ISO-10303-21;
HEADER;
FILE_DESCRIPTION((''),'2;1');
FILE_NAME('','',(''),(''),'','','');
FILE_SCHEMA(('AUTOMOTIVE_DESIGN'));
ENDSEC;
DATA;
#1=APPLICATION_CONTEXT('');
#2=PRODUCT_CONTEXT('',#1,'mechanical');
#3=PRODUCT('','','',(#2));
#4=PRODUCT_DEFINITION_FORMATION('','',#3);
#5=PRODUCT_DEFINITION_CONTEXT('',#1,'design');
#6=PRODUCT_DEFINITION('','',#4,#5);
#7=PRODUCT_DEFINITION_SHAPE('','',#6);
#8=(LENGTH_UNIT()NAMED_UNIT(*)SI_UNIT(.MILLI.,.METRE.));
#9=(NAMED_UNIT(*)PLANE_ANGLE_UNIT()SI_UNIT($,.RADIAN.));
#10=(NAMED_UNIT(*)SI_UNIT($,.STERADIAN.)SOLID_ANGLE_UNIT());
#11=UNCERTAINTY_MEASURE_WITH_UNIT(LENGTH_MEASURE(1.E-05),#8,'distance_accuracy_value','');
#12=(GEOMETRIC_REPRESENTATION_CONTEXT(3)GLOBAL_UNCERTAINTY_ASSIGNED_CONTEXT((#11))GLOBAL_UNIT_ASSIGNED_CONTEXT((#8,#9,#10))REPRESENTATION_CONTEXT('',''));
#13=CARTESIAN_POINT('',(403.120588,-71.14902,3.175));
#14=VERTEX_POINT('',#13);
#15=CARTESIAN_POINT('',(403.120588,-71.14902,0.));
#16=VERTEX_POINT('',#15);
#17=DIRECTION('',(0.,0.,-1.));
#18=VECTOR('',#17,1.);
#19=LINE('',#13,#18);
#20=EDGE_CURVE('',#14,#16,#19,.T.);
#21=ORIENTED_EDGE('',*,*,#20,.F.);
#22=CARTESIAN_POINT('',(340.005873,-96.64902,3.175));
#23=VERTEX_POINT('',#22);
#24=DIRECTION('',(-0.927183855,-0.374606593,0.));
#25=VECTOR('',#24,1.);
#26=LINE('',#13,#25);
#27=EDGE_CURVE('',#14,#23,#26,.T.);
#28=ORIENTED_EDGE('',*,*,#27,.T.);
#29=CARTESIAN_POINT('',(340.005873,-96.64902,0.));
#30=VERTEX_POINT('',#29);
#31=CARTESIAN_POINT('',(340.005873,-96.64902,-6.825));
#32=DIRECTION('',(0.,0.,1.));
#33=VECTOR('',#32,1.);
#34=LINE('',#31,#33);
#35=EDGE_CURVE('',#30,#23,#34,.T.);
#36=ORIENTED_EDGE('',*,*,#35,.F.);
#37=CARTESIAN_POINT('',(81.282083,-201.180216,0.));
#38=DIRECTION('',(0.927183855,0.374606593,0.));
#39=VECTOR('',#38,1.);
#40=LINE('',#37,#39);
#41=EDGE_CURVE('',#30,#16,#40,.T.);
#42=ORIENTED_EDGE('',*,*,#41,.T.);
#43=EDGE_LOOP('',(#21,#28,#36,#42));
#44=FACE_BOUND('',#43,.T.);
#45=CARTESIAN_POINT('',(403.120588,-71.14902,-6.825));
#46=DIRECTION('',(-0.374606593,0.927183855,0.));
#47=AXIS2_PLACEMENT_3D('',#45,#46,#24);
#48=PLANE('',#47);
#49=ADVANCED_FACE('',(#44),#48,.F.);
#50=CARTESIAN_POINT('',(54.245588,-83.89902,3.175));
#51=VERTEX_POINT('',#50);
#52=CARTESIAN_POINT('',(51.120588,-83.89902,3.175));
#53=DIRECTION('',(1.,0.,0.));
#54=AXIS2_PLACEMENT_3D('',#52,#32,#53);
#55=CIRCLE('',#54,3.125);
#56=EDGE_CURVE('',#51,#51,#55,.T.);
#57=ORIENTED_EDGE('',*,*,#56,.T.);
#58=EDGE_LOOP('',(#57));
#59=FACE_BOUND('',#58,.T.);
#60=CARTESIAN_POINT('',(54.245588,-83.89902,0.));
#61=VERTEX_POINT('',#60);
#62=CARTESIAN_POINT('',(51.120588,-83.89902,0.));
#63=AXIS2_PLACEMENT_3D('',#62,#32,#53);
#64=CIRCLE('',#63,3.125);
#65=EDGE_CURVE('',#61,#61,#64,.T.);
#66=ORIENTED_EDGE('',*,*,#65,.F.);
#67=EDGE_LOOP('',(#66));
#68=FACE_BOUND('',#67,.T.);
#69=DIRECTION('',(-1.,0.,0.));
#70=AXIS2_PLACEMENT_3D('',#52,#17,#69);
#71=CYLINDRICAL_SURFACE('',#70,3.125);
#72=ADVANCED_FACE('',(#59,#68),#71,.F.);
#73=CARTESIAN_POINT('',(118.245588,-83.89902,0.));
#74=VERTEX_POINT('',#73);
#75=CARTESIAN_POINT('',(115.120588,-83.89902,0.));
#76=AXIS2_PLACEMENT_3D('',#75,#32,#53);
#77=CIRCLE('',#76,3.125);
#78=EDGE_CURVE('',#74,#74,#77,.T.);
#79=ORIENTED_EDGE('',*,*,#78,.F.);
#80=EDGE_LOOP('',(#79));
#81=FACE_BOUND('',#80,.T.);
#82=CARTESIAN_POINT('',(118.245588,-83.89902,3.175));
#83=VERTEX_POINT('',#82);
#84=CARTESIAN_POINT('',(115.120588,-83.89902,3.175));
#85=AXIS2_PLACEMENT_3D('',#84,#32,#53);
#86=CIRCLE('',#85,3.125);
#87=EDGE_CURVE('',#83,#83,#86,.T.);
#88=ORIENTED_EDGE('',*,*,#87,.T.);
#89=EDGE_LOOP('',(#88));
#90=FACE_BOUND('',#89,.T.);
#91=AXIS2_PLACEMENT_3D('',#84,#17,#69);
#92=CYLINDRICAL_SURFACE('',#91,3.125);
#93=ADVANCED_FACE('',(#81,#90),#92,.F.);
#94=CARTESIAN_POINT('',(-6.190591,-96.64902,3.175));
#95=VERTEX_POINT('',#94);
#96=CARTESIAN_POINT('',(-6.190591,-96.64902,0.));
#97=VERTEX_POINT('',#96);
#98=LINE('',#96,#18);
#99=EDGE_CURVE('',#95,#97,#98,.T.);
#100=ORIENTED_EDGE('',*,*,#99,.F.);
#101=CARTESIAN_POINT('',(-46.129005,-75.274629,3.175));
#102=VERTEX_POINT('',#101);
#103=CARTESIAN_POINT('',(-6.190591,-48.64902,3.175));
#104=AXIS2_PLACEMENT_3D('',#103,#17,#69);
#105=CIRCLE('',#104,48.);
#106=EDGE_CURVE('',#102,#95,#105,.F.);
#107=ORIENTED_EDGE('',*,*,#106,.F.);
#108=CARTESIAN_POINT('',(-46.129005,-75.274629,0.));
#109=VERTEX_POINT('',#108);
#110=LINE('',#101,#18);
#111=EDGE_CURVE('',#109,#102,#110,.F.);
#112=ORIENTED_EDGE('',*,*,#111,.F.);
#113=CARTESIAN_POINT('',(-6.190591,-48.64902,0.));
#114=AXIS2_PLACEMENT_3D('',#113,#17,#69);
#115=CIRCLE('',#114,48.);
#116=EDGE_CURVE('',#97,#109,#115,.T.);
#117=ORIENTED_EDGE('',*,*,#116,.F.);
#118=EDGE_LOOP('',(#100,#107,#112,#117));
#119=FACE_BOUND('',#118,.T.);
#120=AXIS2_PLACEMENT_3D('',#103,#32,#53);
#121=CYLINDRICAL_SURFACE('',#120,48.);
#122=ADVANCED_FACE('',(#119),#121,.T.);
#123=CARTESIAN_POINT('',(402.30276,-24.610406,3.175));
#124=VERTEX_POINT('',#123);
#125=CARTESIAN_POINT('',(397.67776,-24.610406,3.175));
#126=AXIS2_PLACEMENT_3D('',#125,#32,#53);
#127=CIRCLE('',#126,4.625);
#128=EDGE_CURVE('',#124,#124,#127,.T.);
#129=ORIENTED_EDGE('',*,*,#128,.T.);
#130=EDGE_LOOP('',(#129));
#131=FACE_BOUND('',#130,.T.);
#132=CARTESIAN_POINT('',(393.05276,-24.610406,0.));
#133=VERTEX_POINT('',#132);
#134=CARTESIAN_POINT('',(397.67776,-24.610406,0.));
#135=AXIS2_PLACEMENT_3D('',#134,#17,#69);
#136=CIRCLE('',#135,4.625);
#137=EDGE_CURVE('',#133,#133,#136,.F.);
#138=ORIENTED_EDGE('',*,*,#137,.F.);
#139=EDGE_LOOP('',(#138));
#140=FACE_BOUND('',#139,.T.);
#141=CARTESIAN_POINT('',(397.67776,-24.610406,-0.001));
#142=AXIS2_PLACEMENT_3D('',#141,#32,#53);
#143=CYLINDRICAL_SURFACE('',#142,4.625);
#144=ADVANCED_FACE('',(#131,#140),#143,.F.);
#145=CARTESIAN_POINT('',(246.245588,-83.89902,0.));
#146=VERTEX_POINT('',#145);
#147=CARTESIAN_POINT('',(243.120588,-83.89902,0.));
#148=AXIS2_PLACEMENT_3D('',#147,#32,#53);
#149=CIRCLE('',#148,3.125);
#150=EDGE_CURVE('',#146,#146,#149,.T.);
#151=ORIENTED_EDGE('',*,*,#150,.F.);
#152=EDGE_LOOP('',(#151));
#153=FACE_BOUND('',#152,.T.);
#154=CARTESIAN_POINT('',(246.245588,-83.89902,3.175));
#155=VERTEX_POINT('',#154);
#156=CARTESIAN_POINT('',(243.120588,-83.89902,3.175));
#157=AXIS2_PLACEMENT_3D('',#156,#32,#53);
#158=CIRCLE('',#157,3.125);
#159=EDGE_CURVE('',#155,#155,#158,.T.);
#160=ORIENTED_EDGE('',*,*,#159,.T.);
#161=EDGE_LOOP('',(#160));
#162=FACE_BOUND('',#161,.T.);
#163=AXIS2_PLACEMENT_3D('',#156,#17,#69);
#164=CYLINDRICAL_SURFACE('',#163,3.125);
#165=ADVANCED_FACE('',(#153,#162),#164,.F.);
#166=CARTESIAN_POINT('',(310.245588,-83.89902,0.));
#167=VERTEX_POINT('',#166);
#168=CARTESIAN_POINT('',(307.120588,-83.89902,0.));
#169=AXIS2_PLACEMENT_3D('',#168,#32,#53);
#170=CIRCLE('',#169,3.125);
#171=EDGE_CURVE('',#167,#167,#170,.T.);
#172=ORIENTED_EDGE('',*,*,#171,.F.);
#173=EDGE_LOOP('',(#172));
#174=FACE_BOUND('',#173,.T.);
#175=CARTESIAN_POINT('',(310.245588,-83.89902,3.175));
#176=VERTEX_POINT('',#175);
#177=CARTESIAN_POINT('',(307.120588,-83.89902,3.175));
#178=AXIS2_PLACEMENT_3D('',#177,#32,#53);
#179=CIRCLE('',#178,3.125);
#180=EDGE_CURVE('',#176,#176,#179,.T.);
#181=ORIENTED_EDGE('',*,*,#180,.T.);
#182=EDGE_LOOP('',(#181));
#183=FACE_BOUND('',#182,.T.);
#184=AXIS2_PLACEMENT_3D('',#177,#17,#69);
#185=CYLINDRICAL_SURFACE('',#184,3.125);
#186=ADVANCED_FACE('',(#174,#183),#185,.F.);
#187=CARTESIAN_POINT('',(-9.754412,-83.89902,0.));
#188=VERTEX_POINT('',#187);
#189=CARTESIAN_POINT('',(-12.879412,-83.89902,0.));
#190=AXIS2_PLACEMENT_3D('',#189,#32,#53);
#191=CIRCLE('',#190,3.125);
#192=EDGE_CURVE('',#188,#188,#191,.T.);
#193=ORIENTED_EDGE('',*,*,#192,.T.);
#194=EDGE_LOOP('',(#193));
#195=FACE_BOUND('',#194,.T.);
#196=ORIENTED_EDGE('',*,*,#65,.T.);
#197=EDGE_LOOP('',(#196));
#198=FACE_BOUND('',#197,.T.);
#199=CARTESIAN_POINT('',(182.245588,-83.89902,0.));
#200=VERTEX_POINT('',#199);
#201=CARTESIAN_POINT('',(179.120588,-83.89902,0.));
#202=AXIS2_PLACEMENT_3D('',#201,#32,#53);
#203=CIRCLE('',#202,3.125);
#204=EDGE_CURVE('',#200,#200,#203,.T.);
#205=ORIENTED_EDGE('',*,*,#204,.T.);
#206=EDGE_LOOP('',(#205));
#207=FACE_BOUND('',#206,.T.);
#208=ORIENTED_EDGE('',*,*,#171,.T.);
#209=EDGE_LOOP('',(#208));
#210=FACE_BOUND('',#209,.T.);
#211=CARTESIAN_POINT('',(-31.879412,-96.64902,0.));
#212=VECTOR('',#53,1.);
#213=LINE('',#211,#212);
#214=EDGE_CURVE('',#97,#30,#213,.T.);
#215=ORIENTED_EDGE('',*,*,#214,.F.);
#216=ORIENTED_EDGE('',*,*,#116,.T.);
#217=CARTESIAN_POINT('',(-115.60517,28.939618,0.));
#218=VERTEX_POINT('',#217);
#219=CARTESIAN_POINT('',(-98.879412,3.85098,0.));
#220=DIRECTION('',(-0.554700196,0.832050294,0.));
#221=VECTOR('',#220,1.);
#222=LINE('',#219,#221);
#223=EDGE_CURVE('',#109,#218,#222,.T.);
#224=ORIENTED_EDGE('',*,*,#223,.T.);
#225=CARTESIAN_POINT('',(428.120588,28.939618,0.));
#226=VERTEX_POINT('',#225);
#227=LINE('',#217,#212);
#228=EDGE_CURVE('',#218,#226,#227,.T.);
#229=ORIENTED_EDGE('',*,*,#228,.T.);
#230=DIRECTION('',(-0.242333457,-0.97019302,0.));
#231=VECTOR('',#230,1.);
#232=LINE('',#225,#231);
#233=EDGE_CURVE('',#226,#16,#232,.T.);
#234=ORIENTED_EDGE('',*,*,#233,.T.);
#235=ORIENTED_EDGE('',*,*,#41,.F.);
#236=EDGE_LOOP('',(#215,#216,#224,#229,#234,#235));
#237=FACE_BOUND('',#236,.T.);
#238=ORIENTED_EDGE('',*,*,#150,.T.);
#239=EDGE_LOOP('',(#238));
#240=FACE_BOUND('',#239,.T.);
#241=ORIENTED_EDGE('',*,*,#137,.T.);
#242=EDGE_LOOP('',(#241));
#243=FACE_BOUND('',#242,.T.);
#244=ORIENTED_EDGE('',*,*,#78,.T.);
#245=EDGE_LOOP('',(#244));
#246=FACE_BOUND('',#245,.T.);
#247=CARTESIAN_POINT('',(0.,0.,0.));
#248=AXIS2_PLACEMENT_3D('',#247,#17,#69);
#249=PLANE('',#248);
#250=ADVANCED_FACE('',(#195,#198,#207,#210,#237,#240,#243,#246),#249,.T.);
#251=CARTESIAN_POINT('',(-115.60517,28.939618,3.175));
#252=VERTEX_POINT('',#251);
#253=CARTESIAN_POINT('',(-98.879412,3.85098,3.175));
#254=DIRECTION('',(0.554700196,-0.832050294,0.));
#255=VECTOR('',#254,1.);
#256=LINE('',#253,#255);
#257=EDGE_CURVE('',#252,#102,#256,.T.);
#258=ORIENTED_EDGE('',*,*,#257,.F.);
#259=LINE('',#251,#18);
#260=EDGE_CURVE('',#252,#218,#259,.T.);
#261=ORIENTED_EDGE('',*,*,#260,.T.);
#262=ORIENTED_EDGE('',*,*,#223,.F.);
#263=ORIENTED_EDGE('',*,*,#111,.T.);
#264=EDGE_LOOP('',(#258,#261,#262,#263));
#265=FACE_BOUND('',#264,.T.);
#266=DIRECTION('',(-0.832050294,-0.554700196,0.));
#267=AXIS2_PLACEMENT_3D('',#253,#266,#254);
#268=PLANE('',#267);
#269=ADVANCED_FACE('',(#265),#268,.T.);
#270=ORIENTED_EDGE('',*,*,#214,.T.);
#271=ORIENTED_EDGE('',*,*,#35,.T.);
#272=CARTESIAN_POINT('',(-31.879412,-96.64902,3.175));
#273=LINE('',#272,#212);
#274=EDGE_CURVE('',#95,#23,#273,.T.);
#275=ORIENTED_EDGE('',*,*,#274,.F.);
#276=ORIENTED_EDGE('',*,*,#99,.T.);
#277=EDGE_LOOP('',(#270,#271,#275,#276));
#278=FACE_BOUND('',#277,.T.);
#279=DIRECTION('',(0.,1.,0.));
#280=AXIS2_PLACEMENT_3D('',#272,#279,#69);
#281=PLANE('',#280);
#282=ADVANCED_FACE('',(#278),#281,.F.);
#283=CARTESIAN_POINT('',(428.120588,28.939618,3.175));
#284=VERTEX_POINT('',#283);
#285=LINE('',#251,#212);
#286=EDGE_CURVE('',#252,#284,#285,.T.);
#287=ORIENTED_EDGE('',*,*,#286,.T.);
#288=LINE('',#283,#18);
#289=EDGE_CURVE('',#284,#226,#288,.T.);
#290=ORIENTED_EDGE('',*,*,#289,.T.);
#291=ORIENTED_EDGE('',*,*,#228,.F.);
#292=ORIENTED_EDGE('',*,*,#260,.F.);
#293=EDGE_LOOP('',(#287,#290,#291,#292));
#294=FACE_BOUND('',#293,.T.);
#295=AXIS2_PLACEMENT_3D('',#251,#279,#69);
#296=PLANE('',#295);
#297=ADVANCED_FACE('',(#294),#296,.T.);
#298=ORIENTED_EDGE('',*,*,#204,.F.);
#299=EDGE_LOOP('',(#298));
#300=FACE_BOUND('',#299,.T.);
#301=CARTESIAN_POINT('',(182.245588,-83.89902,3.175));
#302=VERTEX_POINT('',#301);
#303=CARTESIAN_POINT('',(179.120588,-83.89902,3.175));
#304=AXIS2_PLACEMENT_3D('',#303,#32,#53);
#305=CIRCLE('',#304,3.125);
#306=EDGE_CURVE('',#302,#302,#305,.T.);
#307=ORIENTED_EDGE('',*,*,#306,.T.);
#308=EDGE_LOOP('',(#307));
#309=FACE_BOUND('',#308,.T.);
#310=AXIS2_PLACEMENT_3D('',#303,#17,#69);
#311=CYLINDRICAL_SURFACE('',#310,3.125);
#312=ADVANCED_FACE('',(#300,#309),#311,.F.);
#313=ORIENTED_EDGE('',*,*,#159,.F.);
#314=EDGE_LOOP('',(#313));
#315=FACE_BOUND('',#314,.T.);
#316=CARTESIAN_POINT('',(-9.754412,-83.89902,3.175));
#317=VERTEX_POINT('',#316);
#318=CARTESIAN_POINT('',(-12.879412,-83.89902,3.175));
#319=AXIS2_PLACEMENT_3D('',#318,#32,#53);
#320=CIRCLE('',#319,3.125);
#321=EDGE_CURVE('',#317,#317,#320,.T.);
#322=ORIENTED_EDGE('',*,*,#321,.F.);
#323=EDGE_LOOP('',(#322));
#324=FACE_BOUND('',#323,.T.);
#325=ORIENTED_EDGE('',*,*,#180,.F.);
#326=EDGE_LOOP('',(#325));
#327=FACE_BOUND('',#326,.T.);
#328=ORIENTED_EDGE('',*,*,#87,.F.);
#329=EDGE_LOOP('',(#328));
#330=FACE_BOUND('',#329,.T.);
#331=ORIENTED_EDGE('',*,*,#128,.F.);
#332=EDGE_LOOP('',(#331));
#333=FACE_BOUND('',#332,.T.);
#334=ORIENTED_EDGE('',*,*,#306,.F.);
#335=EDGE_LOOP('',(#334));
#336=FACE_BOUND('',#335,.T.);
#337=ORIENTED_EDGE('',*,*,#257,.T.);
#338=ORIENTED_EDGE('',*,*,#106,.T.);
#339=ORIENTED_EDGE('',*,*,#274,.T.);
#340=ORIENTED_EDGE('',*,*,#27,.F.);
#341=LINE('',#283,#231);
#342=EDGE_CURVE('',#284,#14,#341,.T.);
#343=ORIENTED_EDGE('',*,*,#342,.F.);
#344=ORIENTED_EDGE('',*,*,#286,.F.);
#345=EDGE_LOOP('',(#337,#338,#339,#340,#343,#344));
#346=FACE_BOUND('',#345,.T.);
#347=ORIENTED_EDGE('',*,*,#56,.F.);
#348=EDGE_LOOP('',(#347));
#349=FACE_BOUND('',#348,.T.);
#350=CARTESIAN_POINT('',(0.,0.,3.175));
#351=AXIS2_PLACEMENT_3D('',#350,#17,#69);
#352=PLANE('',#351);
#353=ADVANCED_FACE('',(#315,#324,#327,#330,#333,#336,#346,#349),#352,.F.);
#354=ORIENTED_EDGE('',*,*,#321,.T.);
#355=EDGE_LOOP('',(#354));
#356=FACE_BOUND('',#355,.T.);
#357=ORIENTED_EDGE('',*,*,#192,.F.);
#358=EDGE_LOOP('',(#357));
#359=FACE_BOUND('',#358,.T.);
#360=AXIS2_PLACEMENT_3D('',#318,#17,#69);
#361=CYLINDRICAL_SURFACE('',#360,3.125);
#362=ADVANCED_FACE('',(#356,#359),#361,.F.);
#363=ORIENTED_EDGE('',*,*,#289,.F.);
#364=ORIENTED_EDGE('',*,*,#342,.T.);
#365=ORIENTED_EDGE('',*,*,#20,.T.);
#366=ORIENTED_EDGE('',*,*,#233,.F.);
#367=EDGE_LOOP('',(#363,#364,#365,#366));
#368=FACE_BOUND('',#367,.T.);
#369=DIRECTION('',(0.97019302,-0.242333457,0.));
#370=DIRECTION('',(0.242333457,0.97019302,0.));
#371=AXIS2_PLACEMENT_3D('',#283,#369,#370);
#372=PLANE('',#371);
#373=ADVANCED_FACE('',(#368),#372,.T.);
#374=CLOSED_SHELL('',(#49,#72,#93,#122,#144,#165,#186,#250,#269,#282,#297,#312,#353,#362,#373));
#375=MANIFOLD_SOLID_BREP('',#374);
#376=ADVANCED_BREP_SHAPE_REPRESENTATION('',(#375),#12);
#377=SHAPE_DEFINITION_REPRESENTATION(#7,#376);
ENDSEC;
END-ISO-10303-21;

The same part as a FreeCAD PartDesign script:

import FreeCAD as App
import Part
import Sketcher

V = App.Vector
Q = App.Units.Quantity


def edges_at(feature, points):
    """Names of the edges that pass closest to the given points."""
    edges = feature.Shape.Edges
    near = lambda p: min(range(len(edges)), key=lambda i: edges[i].distToShape(Part.Vertex(*p))[0])
    return sorted({f"Edge{near(p) + 1}" for p in points})


def add_polygon(sketch, points):
    """Adds a closed chain of lines whose ends are joined by coincident constraints."""
    first, n = sketch.GeometryCount, len(points)
    for a, b in zip(points, points[1:] + points[:1]):
        sketch.addGeometry(Part.LineSegment(App.Vector(*a, 0), App.Vector(*b, 0)), False)
    for i in range(n):
        sketch.addConstraint(Sketcher.Constraint("Coincident", first + i, 2, first + (i + 1) % n, 1))

doc = App.newDocument("Part")
body = doc.addObject("PartDesign::Body", "Body")

# Sketch on XY plane
sketch1 = body.newObject("Sketcher::SketchObject", "Sketch")
sketch1.AttachmentSupport = (doc.getObject("XY_Plane"), [""])
sketch1.MapMode = "FlatFace"
add_polygon(sketch1, [(-98.879412, 3.85098), (-31.879412, -96.64902), (366, -96.64902), (403.120588, -71.14902), (428.120588, 28.939618), (-115.60517, 28.939618)])  # lines 0-5
sketch1.addConstraint(Sketcher.Constraint("Horizontal", 1))
sketch1.addConstraint(Sketcher.Constraint("Horizontal", 4))
sketch1.addConstraint(Sketcher.Constraint("Parallel", 0, 5))
sketch1.addConstraint(Sketcher.Constraint("DistanceX", -1, 1, 1, 2, 366.0))
sketch1.addConstraint(Sketcher.Constraint("DistanceX", 0, 2, 2, 2, 435.0))
sketch1.addConstraint(Sketcher.Constraint("DistanceX", 2, 2, 3, 2, 25.0))
sketch1.addConstraint(Sketcher.Constraint("DistanceX", 5, 2, 0, 2, 67.0))
sketch1.addConstraint(Sketcher.Constraint("DistanceY", 2, 2, 5, 2, 75.0))
sketch1.addConstraint(Sketcher.Constraint("DistanceY", 1, 2, 2, 2, 25.5))
sketch1.addConstraint(Sketcher.Constraint("DistanceX", 1, 1, 1, 2, 397.879412))
sketch1.addConstraint(Sketcher.Constraint("DistanceX", 4, 2, 4, 1, 543.725758))
sketch1.addConstraint(Sketcher.Constraint("DistanceY", 0, 2, -1, 1, 96.64902))
pad1 = body.newObject("PartDesign::Pad", "Pad")
pad1.Profile = sketch1
pad1.Length = 3.175

# Sketch on XY plane
sketch2 = body.newObject("Sketcher::SketchObject", "Sketch001")
sketch2.AttachmentSupport = (doc.getObject("XY_Plane"), [""])
sketch2.MapMode = "FlatFace"
sketch2.addGeometry(Part.Circle(V(-12.879412, -83.89902, 0), V(0, 0, 1), 3.125), False)
sketch2.addGeometry(Part.Circle(V(51.120588, -83.89902, 0), V(0, 0, 1), 3.125), False)
sketch2.addGeometry(Part.Circle(V(115.120588, -83.89902, 0), V(0, 0, 1), 3.125), False)
sketch2.addGeometry(Part.Circle(V(179.120588, -83.89902, 0), V(0, 0, 1), 3.125), False)
sketch2.addGeometry(Part.Circle(V(243.120588, -83.89902, 0), V(0, 0, 1), 3.125), False)
sketch2.addGeometry(Part.Circle(V(307.120588, -83.89902, 0), V(0, 0, 1), 3.125), False)
sketch2.addConstraint(Sketcher.Constraint("Equal", 0, 1))
sketch2.addConstraint(Sketcher.Constraint("Equal", 1, 2))
sketch2.addConstraint(Sketcher.Constraint("Equal", 2, 3))
sketch2.addConstraint(Sketcher.Constraint("Equal", 3, 4))
sketch2.addConstraint(Sketcher.Constraint("Equal", 4, 5))
sketch2.addConstraint(Sketcher.Constraint("Horizontal", 0, 3, 1, 3))
sketch2.addConstraint(Sketcher.Constraint("Horizontal", 1, 3, 2, 3))
sketch2.addConstraint(Sketcher.Constraint("Horizontal", 2, 3, 3, 3))
sketch2.addConstraint(Sketcher.Constraint("Horizontal", 3, 3, 4, 3))
sketch2.addConstraint(Sketcher.Constraint("Horizontal", 4, 3, 5, 3))
sketch2.addConstraint(Sketcher.Constraint("Diameter", 0, 6.25))
sketch2.addConstraint(Sketcher.Constraint("DistanceX", 0, 3, 1, 3, 64.0))
sketch2.addConstraint(Sketcher.Constraint("DistanceX", 1, 3, 2, 3, 64.0))
sketch2.addConstraint(Sketcher.Constraint("DistanceX", 2, 3, 3, 3, 64.0))
sketch2.addConstraint(Sketcher.Constraint("DistanceX", 3, 3, 4, 3, 64.0))
sketch2.addConstraint(Sketcher.Constraint("DistanceX", 4, 3, 5, 3, 64.0))
sketch2.addConstraint(Sketcher.Constraint("DistanceX", 0, 3, -1, 1, 12.879412))
sketch2.addConstraint(Sketcher.Constraint("DistanceY", 0, 3, -1, 1, 83.89902))
pocket1 = body.newObject("PartDesign::Pocket", "Pocket")
pocket1.Profile = sketch2
pocket1.Type = "ThroughAll"
pocket1.Reversed = True
doc.recompute()

fillet = body.newObject("PartDesign::Fillet", "Fillet")
fillet.Base = (pocket1, edges_at(pocket1, [(-31.879, -96.649, 1.587)]))
fillet.Radius = 48

# Sketch on XY plane
sketch3 = body.newObject("Sketcher::SketchObject", "Sketch002")
sketch3.AttachmentSupport = (doc.getObject("XY_Plane"), [""])
sketch3.MapMode = "FlatFace"
sketch3.AttachmentOffset = App.Placement(V(0, 0, 3.175), App.Rotation())
add_polygon(sketch3, [(403.120588, -71.14902), (340.005873, -96.64902), (366, -96.64902)])  # lines 0-2
sketch3.addConstraint(Sketcher.Constraint("Horizontal", 1))
sketch3.addConstraint(Sketcher.Constraint("Angle", 0, Q("-158 deg")))
sketch3.addConstraint(Sketcher.Constraint("DistanceX", -1, 1, 1, 2, 366.0))
sketch3.addConstraint(Sketcher.Constraint("DistanceY", 1, 2, 2, 2, 25.5))
sketch3.addConstraint(Sketcher.Constraint("Distance", 2, 45.035409))
sketch3.addConstraint(Sketcher.Constraint("DistanceY", 0, 2, -1, 1, 96.64902))
pocket2 = body.newObject("PartDesign::Pocket", "Pocket001")
pocket2.Profile = sketch3
pocket2.Length = 10

# Sketch on XY plane
sketch4 = body.newObject("Sketcher::SketchObject", "Sketch003")
sketch4.AttachmentSupport = (doc.getObject("XY_Plane"), [""])
sketch4.MapMode = "FlatFace"
sketch4.AttachmentOffset = App.Placement(V(0, 0, 3.175), App.Rotation())
sketch4.addGeometry(Part.Circle(V(397.67776, -24.610406, 0), V(0, 0, 1), 4.625), False)
sketch4.addConstraint(Sketcher.Constraint("Diameter", 0, 9.25))
sketch4.addConstraint(Sketcher.Constraint("DistanceX", -1, 1, 0, 3, 397.67776))
sketch4.addConstraint(Sketcher.Constraint("DistanceY", 0, 3, -1, 1, 24.610406))
pocket3 = body.newObject("PartDesign::Pocket", "Pocket002")
pocket3.Profile = sketch4
pocket3.Type = "UpToFirst"

doc.recompute()
